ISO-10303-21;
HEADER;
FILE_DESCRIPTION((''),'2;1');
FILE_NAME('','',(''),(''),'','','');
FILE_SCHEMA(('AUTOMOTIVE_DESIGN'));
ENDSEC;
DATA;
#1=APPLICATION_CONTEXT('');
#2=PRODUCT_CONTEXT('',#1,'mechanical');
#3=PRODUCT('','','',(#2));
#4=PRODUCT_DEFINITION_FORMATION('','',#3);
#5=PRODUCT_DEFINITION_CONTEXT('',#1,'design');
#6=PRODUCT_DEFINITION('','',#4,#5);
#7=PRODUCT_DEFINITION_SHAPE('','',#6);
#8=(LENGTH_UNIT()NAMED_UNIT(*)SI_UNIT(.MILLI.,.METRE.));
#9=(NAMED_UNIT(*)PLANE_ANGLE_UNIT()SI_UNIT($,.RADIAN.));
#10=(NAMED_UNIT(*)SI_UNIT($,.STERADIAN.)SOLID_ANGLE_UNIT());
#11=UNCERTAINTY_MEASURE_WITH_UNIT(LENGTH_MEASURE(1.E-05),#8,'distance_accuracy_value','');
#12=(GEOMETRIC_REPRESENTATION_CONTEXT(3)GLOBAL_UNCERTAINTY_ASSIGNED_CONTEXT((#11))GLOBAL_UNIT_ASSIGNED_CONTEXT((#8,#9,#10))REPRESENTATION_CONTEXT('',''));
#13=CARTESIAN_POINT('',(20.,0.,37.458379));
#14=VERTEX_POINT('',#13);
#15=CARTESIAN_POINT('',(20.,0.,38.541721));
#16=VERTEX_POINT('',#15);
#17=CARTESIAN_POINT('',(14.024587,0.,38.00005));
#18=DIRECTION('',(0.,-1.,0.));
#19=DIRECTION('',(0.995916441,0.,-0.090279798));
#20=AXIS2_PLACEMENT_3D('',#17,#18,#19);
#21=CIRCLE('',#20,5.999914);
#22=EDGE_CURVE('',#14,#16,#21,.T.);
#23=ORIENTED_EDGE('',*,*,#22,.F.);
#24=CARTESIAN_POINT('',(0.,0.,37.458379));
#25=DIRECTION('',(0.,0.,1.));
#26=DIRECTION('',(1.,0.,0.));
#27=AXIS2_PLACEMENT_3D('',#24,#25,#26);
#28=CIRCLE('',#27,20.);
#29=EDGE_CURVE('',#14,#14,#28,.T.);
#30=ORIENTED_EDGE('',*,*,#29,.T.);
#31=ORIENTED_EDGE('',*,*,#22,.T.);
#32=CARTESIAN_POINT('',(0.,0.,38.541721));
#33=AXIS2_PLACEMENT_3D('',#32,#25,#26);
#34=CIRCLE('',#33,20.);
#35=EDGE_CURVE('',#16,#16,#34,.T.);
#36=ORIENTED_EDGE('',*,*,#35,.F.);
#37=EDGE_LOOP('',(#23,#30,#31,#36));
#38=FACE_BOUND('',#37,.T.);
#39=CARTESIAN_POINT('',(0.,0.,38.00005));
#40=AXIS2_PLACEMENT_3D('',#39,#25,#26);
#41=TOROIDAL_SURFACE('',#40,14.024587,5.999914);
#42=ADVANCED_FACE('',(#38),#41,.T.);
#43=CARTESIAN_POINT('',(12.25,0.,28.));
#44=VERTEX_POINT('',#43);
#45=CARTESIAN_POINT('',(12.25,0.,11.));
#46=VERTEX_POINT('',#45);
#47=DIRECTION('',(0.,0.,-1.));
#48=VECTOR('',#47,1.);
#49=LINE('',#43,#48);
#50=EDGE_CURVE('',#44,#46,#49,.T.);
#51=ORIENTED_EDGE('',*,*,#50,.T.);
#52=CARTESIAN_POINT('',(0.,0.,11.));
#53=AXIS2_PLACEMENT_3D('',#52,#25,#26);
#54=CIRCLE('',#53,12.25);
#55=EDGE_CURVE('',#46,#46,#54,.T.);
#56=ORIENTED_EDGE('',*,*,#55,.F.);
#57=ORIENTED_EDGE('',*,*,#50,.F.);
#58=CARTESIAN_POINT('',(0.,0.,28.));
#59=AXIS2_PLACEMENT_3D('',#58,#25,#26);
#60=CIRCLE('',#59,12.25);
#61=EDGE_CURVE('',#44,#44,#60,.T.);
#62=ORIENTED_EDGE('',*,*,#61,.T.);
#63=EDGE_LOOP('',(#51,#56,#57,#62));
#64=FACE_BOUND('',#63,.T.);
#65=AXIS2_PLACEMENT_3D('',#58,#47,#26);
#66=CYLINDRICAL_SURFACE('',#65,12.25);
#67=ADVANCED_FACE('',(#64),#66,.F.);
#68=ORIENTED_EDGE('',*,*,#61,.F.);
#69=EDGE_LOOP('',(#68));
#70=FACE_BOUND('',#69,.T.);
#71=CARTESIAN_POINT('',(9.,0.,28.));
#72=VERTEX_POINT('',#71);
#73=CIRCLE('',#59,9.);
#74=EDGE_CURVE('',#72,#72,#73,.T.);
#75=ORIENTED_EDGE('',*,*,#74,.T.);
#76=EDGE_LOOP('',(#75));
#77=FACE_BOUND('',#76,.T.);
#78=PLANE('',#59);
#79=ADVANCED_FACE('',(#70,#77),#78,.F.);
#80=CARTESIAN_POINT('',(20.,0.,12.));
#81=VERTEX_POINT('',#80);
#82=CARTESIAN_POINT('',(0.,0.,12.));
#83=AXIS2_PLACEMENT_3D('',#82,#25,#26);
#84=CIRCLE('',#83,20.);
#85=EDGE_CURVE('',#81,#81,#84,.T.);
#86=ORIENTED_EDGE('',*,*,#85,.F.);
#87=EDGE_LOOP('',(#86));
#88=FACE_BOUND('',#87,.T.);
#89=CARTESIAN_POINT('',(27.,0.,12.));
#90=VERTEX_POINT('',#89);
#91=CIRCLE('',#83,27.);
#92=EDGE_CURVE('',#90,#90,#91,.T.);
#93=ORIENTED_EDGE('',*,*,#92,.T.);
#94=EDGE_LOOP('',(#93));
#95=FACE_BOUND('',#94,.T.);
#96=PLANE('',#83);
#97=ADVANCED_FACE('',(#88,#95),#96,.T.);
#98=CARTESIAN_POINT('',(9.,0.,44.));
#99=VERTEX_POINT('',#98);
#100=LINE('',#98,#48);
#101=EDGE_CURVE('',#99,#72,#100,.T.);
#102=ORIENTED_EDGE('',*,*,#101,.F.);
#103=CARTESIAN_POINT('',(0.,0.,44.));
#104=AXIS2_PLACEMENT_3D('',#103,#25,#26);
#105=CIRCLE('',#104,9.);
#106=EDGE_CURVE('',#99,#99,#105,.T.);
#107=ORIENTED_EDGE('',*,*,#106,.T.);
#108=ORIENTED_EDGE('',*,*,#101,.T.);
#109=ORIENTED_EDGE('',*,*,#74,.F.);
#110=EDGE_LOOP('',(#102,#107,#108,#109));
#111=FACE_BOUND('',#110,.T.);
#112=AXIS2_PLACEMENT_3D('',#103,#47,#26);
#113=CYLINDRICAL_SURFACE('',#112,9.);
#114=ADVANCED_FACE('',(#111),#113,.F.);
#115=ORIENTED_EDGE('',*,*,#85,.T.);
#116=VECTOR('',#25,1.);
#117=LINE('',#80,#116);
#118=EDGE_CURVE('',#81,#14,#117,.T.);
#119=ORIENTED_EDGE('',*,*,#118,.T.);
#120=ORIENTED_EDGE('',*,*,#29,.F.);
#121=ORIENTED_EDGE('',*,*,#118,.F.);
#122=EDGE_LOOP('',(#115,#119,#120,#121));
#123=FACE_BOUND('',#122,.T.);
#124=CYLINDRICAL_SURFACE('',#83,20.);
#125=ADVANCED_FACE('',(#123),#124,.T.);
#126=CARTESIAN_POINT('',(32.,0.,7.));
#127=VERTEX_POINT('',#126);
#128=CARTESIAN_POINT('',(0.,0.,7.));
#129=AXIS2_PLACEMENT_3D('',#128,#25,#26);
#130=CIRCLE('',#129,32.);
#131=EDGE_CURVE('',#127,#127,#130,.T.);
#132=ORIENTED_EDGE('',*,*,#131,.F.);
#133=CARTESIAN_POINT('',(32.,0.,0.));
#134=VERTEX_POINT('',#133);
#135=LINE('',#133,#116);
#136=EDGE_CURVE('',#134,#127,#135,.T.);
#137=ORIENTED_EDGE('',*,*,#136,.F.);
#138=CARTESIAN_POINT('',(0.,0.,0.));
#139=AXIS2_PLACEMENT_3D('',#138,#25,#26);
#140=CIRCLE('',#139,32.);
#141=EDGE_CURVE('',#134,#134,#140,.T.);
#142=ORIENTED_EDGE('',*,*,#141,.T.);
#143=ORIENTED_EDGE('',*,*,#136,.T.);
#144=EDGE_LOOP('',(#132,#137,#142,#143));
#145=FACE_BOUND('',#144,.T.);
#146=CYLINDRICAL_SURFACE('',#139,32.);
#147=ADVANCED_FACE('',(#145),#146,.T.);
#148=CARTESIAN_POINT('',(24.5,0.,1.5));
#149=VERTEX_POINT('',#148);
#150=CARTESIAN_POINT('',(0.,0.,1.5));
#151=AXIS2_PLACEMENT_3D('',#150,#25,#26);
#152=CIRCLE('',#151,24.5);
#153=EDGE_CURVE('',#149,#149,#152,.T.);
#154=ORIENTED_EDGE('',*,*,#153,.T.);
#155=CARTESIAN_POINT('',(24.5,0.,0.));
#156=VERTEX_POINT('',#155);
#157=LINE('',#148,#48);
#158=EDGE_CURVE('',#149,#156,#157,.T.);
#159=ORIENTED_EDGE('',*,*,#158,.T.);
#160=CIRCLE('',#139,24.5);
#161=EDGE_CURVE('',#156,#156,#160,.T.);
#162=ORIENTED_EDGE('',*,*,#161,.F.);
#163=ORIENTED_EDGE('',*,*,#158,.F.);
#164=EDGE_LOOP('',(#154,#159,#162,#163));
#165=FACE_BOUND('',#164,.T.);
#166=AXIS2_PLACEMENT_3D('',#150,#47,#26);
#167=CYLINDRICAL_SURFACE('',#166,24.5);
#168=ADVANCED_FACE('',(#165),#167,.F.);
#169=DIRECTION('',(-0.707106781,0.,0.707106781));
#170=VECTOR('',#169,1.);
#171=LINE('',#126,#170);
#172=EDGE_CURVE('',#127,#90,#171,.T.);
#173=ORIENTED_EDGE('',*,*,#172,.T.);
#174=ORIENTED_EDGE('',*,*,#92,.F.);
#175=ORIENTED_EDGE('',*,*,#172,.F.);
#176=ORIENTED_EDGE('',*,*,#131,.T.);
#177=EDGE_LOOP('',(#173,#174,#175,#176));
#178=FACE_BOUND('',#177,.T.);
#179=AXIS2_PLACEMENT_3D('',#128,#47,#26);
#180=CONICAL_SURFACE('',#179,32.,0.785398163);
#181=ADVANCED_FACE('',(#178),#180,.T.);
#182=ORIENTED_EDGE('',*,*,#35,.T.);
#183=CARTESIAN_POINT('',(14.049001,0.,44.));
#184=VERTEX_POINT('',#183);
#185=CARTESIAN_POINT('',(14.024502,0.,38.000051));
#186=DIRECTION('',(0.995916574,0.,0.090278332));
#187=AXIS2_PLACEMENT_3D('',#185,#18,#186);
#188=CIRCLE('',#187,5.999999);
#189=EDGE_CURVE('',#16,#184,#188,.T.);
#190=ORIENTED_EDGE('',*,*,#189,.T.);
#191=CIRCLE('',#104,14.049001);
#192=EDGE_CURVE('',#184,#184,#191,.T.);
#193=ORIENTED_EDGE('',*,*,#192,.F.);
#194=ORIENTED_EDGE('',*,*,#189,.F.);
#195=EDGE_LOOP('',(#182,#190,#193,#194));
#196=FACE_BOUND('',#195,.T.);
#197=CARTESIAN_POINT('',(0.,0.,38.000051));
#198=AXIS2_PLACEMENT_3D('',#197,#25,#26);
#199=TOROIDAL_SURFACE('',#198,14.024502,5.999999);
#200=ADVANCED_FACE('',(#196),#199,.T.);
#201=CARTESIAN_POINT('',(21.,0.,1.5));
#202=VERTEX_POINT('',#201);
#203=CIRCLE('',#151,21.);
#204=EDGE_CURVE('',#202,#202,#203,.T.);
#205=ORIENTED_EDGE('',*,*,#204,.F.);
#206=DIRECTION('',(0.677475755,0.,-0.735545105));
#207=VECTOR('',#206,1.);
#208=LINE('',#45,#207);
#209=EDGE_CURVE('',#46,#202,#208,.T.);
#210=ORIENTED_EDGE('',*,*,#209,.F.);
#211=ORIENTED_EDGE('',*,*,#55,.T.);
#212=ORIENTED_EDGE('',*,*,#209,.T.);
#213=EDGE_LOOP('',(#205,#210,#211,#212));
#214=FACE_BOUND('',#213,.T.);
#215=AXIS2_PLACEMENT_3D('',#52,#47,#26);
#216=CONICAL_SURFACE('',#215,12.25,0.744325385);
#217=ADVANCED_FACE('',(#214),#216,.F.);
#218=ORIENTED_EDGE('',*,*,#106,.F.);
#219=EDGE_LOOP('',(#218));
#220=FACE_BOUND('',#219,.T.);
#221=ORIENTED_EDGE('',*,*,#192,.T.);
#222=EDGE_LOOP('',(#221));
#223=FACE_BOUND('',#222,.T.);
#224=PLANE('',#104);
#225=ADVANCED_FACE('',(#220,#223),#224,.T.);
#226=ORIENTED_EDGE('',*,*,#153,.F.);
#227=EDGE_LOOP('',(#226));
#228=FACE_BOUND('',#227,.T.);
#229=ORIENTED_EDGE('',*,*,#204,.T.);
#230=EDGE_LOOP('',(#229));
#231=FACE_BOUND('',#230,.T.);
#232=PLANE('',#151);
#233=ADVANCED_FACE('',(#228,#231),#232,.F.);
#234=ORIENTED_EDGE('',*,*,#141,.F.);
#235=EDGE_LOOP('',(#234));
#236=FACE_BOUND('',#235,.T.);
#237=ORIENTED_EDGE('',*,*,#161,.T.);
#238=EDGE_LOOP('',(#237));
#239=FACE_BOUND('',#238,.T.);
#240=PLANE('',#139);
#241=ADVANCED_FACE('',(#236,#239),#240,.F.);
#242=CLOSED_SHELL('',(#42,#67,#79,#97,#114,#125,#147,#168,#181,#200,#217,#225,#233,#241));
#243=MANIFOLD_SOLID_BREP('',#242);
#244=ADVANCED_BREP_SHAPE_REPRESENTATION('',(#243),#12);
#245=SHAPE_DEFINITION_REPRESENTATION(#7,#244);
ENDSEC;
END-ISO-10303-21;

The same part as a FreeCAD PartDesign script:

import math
import FreeCAD as App
import Part
import Sketcher

V = App.Vector
Q = App.Units.Quantity

doc = App.newDocument("Part")
body = doc.addObject("PartDesign::Body", "Body")

sketch1 = doc.addObject("Sketcher::SketchObject", "Sketch")
body.addObject(sketch1)
sketch1.AttachmentSupport = (doc.XZ_Plane, [""])
sketch1.MapMode = "FlatFace"
sketch1.addGeometry([
    Part.LineSegment(V(24.5, 0, 0), V(32, 0, 0)),
    Part.LineSegment(V(32, 0, 0), V(32, 7, 0)),
    Part.LineSegment(V(32, 7, 0), V(27, 12, 0)),
    Part.LineSegment(V(27, 12, 0), V(20, 12, 0)),
    Part.LineSegment(V(20, 12, 0), V(20, 37.458379, 0)),
    Part.ArcOfCircle(Part.Circle(V(14.024587, 38.00005, 0), V(0, 0, 1), 5.999914), math.radians(-5.179704), math.radians(5.179704)),
    Part.ArcOfCircle(Part.Circle(V(14.024502, 38.000051, 0), V(0, 0, 1), 5.999999), math.radians(5.17962), math.radians(89.766048)),
    Part.LineSegment(V(14.049001, 44, 0), V(9, 44, 0)),
    Part.LineSegment(V(9, 44, 0), V(9, 28, 0)),
    Part.LineSegment(V(9, 28, 0), V(12.25, 28, 0)),
    Part.LineSegment(V(12.25, 28, 0), V(12.25, 11, 0)),
    Part.LineSegment(V(12.25, 11, 0), V(21, 1.5, 0)),
    Part.LineSegment(V(21, 1.5, 0), V(24.5, 1.5, 0)),
    Part.LineSegment(V(24.5, 1.5, 0), V(24.5, 0, 0)),
], False)
sketch1.addConstraint([
    Sketcher.Constraint("Coincident", 0, 2, 1, 1),
    Sketcher.Constraint("Coincident", 1, 2, 2, 1),
    Sketcher.Constraint("Coincident", 2, 2, 3, 1),
    Sketcher.Constraint("Coincident", 3, 2, 4, 1),
    Sketcher.Constraint("Coincident", 4, 2, 5, 1),
    Sketcher.Constraint("Coincident", 5, 2, 6, 1),
    Sketcher.Constraint("Coincident", 6, 2, 7, 1),
    Sketcher.Constraint("Coincident", 7, 2, 8, 1),
    Sketcher.Constraint("Coincident", 8, 2, 9, 1),
    Sketcher.Constraint("Coincident", 9, 2, 10, 1),
    Sketcher.Constraint("Coincident", 10, 2, 11, 1),
    Sketcher.Constraint("Coincident", 11, 2, 12, 1),
    Sketcher.Constraint("Coincident", 12, 2, 13, 1),
    Sketcher.Constraint("Coincident", 13, 2, 0, 1),
    Sketcher.Constraint("Horizontal", 0),
    Sketcher.Constraint("Vertical", 1),
    Sketcher.Constraint("Horizontal", 3),
    Sketcher.Constraint("Vertical", 4),
    Sketcher.Constraint("Horizontal", 7),
    Sketcher.Constraint("Vertical", 8),
    Sketcher.Constraint("Horizontal", 9),
    Sketcher.Constraint("Vertical", 10),
    Sketcher.Constraint("Horizontal", 12),
    Sketcher.Constraint("Vertical", 13),
    Sketcher.Constraint("PointOnObject", 0, 2, -1),
    Sketcher.Constraint("Radius", 6, Q("5.999999 mm")),
    Sketcher.Constraint("DistanceX", 3, 2, 3, 1, Q("7 mm")),
    Sketcher.Constraint("DistanceY", 1, 1, 1, 2, Q("7 mm")),
    Sketcher.Constraint("DistanceY", 8, 2, 8, 1, Q("16 mm")),
    Sketcher.Constraint("DistanceY", 10, 2, 10, 1, Q("17 mm")),
    Sketcher.Constraint("DistanceX", 0, 1, 0, 2, Q("7.5 mm")),
    Sketcher.Constraint("DistanceX", 12, 1, 12, 2, Q("3.5 mm")),
    Sketcher.Constraint("DistanceY", 13, 2, 13, 1, Q("1.5 mm")),
    Sketcher.Constraint("DistanceX", -1, 1, 0, 2, Q("32 mm")),
    Sketcher.Constraint("DistanceX", -1, 1, 2, 2, Q("27 mm")),
    Sketcher.Constraint("DistanceY", -1, 1, 2, 2, Q("12 mm")),
    Sketcher.Constraint("DistanceX", -1, 1, 5, 2, Q("20 mm")),
    Sketcher.Constraint("DistanceY", -1, 1, 6, 2, Q("44 mm")),
    Sketcher.Constraint("DistanceX", -1, 1, 7, 2, Q("9 mm")),
    Sketcher.Constraint("DistanceX", 9, 1, 9, 2, Q("3.25 mm")),
    Sketcher.Constraint("DistanceX", 7, 2, 7, 1, Q("5.049001 mm")),
    Sketcher.Constraint("Radius", 5, Q("5.999914 mm")),
    Sketcher.Constraint("DistanceY", 4, 1, 4, 2, Q("25.458379 mm")),
    Sketcher.Constraint("DistanceX", -1, 1, 6, 3, Q("14.024502 mm")),
])
revolution = doc.addObject("PartDesign::Revolution", "Revolution")
body.addObject(revolution)
revolution.Profile = sketch1
revolution.ReferenceAxis = (sketch1, ["V_Axis"])
revolution.Angle = 360

doc.recompute()
